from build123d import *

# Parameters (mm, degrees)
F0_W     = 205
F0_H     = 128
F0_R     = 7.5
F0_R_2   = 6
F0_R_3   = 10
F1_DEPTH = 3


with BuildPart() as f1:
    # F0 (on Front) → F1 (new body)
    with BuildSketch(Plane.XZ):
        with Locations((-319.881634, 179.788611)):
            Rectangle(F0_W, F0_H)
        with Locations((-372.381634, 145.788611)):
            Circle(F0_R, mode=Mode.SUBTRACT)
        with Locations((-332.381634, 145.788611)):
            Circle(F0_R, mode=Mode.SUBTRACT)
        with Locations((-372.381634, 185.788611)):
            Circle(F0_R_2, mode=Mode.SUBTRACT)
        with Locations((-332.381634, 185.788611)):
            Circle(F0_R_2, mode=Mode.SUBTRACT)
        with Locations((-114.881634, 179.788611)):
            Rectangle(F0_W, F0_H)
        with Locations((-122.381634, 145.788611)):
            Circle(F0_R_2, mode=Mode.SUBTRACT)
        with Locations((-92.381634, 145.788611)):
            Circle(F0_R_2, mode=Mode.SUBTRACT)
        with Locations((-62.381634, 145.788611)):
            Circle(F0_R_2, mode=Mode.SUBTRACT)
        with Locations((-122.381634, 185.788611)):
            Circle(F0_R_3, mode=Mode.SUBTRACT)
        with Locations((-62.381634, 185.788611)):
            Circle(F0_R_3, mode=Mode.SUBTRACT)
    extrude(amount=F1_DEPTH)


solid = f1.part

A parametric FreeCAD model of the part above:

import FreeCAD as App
import Part
import Sketcher
from FreeCAD import Vector
Q = App.Units.Quantity

doc = App.newDocument("Part")
body = doc.addObject("PartDesign::Body", "Body")

# Sketch on XZ plane
sketch1 = doc.addObject("Sketcher::SketchObject", "Sketch")
body.addObject(sketch1)
sketch1.AttachmentSupport = (doc.XZ_Plane, [""])
sketch1.MapMode = "FlatFace"
sketch1.addGeometry(Part.LineSegment(Vector(-422, 244, 0), Vector(-422, 116, 0)), False)
sketch1.addGeometry(Part.LineSegment(Vector(-422, 116, 0), Vector(-12, 116, 0)), False)
sketch1.addGeometry(Part.LineSegment(Vector(-12, 116, 0), Vector(-12, 244, 0)), False)
sketch1.addGeometry(Part.LineSegment(Vector(-12, 244, 0), Vector(-422, 244, 0)), False)
sketch1.addGeometry(Part.Circle(Vector(-372, 146, 0), Vector(0, 0, 1), 8), False)
sketch1.addGeometry(Part.Circle(Vector(-332, 146, 0), Vector(0, 0, 1), 8), False)
sketch1.addGeometry(Part.Circle(Vector(-122, 146, 0), Vector(0, 0, 1), 6), False)
sketch1.addGeometry(Part.Circle(Vector(-92, 146, 0), Vector(0, 0, 1), 6), False)
sketch1.addGeometry(Part.Circle(Vector(-62, 146, 0), Vector(0, 0, 1), 6), False)
sketch1.addGeometry(Part.Circle(Vector(-372, 186, 0), Vector(0, 0, 1), 6), False)
sketch1.addGeometry(Part.Circle(Vector(-332, 186, 0), Vector(0, 0, 1), 6), False)
sketch1.addGeometry(Part.Circle(Vector(-122, 186, 0), Vector(0, 0, 1), 10), False)
sketch1.addGeometry(Part.Circle(Vector(-62, 186, 0), Vector(0, 0, 1), 10), False)
sketch1.addConstraint(Sketcher.Constraint("Coincident", 0, 2, 1, 1))
sketch1.addConstraint(Sketcher.Constraint("Coincident", 1, 2, 2, 1))
sketch1.addConstraint(Sketcher.Constraint("Coincident", 2, 2, 3, 1))
sketch1.addConstraint(Sketcher.Constraint("Coincident", 3, 2, 0, 1))
sketch1.addConstraint(Sketcher.Constraint("Vertical", 0))
sketch1.addConstraint(Sketcher.Constraint("Horizontal", 1))
sketch1.addConstraint(Sketcher.Constraint("Vertical", 2))
sketch1.addConstraint(Sketcher.Constraint("Horizontal", 3))
sketch1.addConstraint(Sketcher.Constraint("Equal", 4, 5))
sketch1.addConstraint(Sketcher.Constraint("Equal", 6, 7))
sketch1.addConstraint(Sketcher.Constraint("Equal", 7, 8))
sketch1.addConstraint(Sketcher.Constraint("Equal", 8, 9))
sketch1.addConstraint(Sketcher.Constraint("Equal", 9, 10))
sketch1.addConstraint(Sketcher.Constraint("Equal", 11, 12))
sketch1.addConstraint(Sketcher.Constraint("Horizontal", 4, 3, 5, 3))
sketch1.addConstraint(Sketcher.Constraint("Horizontal", 5, 3, 6, 3))
sketch1.addConstraint(Sketcher.Constraint("Horizontal", 6, 3, 7, 3))
sketch1.addConstraint(Sketcher.Constraint("Horizontal", 7, 3, 8, 3))
sketch1.addConstraint(Sketcher.Constraint("Horizontal", 9, 3, 10, 3))
sketch1.addConstraint(Sketcher.Constraint("Horizontal", 10, 3, 11, 3))
sketch1.addConstraint(Sketcher.Constraint("Horizontal", 11, 3, 12, 3))
sketch1.addConstraint(Sketcher.Constraint("Vertical", 4, 3, 9, 3))
sketch1.addConstraint(Sketcher.Constraint("Vertical", 5, 3, 10, 3))
sketch1.addConstraint(Sketcher.Constraint("Vertical", 6, 3, 11, 3))
sketch1.addConstraint(Sketcher.Constraint("Vertical", 8, 3, 12, 3))
sketch1.addConstraint(Sketcher.Constraint("Diameter", 4, Q("15 mm")))
sketch1.addConstraint(Sketcher.Constraint("Diameter", 6, Q("12 mm")))
sketch1.addConstraint(Sketcher.Constraint("Diameter", 11, Q("20 mm")))
sketch1.addConstraint(Sketcher.Constraint("DistanceX", 1, 1, 1, 2, Q("410 mm")))
sketch1.addConstraint(Sketcher.Constraint("DistanceY", 0, 2, 0, 1, Q("128 mm")))
sketch1.addConstraint(Sketcher.Constraint("DistanceX", 4, 3, 5, 3, Q("40 mm")))
sketch1.addConstraint(Sketcher.Constraint("DistanceX", 5, 3, 6, 3, Q("210 mm")))
sketch1.addConstraint(Sketcher.Constraint("DistanceX", 6, 3, 7, 3, Q("30 mm")))
sketch1.addConstraint(Sketcher.Constraint("DistanceX", 7, 3, 8, 3, Q("30 mm")))
sketch1.addConstraint(Sketcher.Constraint("DistanceY", 4, 3, 9, 3, Q("40 mm")))
sketch1.addConstraint(Sketcher.Constraint("DistanceX", 0, 2, 4, 3, Q("50 mm")))
sketch1.addConstraint(Sketcher.Constraint("DistanceY", 0, 2, 4, 3, Q("30 mm")))
sketch1.addConstraint(Sketcher.Constraint("DistanceY", -1, 1, 4, 3, Q("145.788611 mm")))
sketch1.addConstraint(Sketcher.Constraint("DistanceX", 4, 3, -1, 1, Q("372.381634 mm")))
pad1 = doc.addObject("PartDesign::Pad", "Pad")
body.addObject(pad1)
pad1.Profile = sketch1
pad1.Length = 3

doc.recompute()
